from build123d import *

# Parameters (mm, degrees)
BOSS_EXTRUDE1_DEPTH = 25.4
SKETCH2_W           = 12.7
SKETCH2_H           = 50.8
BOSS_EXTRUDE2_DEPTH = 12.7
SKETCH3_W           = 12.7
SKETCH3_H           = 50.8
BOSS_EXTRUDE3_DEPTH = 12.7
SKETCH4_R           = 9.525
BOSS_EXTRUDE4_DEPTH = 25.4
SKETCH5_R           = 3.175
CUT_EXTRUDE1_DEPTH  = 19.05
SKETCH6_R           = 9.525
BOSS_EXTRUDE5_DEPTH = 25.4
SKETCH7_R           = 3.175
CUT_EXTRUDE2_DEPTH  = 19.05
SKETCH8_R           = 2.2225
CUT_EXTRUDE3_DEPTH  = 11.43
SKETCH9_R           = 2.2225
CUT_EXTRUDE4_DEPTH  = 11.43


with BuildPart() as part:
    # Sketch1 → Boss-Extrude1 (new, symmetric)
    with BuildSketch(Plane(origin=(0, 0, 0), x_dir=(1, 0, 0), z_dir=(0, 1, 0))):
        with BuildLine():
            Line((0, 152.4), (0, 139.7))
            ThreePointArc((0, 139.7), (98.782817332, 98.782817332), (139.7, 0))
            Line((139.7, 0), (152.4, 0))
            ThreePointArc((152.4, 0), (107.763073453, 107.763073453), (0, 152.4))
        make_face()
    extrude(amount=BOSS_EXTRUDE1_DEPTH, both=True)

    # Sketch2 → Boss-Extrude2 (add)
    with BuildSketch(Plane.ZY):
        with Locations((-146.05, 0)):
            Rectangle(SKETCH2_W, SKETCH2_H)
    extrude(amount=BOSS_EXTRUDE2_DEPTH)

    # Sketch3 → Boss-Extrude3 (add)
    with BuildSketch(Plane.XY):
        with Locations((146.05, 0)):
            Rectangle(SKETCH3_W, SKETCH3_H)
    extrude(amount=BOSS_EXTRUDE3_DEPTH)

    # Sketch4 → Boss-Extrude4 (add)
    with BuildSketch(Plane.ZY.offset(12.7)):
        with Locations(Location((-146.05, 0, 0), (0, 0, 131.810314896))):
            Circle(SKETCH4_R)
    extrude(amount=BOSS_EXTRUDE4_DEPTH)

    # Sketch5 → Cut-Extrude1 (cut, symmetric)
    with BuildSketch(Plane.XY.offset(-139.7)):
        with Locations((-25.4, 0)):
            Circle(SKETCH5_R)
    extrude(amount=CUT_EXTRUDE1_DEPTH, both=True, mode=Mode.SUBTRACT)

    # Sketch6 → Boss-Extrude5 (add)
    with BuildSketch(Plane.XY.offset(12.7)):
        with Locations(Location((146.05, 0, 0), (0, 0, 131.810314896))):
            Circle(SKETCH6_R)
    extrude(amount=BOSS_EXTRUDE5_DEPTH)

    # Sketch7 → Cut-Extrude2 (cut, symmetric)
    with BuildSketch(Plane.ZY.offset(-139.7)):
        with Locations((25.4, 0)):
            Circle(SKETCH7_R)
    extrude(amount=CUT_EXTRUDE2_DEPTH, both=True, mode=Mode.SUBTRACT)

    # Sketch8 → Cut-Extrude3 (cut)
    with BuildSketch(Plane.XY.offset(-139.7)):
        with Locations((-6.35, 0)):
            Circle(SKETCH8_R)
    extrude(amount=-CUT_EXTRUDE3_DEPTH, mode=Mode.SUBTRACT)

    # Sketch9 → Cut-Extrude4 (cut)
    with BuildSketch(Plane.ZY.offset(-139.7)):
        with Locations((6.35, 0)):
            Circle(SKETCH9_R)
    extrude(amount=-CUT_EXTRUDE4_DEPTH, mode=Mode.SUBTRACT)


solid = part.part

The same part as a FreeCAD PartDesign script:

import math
import FreeCAD as App
import Part
import Sketcher
from FreeCAD import Vector
Q = App.Units.Quantity

doc = App.newDocument("Part")
params = doc.addObject("Spreadsheet::Sheet", "Params")
for row, (alias, value) in enumerate([
    ("sketch1_radius", "6 in"),
    ("sketch1_radius2", "5.5 in"),
    ("pad1_length", "2 in"),
    ("sketch2_width", "2 in"),
    ("sketch2_height", "0.5 in"),
    ("pad2_length", "0.5 in"),
    ("sketch3_height", "2 in"),
    ("sketch3_width", "0.5 in"),
    ("pad3_length", "0.5 in"),
    ("sketch4_diameter", "0.75 in"),
    ("pad4_length", "1 in"),
    ("sketch5_diameter", "0.25 in"),
    ("pocket1_length", "1.5 in"),
    ("sketch6_diameter", "0.75 in"),
    ("pad5_length", "1 in"),
    ("sketch7_diameter", "0.25 in"),
    ("pocket2_length", "1.5 in"),
    ("sketch8_diameter", "0.175 in"),
    ("pocket3_length", "0.45 in"),
    ("sketch9_diameter", "0.175 in"),
    ("pocket4_length", "0.45 in"),
], start=1):
    params.set(f"A{row}", alias)
    params.set(f"B{row}", "=" + value)
    params.setAlias(f"B{row}", alias)

body = doc.addObject("PartDesign::Body", "Body")

sketch1 = body.newObject("Sketcher::SketchObject", "Sketch")
sketch1.AttachmentSupport = (doc.getObject("XZ_Plane"), [""])
sketch1.MapMode = "FlatFace"
sketch1.addGeometry(Part.LineSegment(Vector(0, -152, 0), Vector(0, -140, 0)), False)
sketch1.addGeometry(Part.ArcOfCircle(Part.Circle(Vector(0, 0, 0), Vector(0, 0, 1), 140), math.radians(-90), math.radians(0)), False)
sketch1.addGeometry(Part.LineSegment(Vector(140, 0, 0), Vector(152, 0, 0)), False)
sketch1.addGeometry(Part.ArcOfCircle(Part.Circle(Vector(0, 0, 0), Vector(0, 0, 1), 152), math.radians(-90), math.radians(0)), False)
sketch1.addConstraint(Sketcher.Constraint("Coincident", 0, 2, 1, 1))
sketch1.addConstraint(Sketcher.Constraint("Coincident", 1, 2, 2, 1))
sketch1.addConstraint(Sketcher.Constraint("Coincident", 2, 2, 3, 2))
sketch1.addConstraint(Sketcher.Constraint("Coincident", 3, 1, 0, 1))
sketch1.addConstraint(Sketcher.Constraint("Vertical", 0))
sketch1.addConstraint(Sketcher.Constraint("Horizontal", 2))
sketch1.addConstraint(Sketcher.Constraint("Coincident", 1, 3, -1, 1))
sketch1.addConstraint(Sketcher.Constraint("Coincident", 3, 3, -1, 1))
sketch1.addConstraint(Sketcher.Constraint("PointOnObject", 0, 2, -2))
sketch1.addConstraint(Sketcher.Constraint("PointOnObject", 1, 2, -1))
sketch1.addConstraint(Sketcher.Constraint("Radius", 3, Q("6 in")))
sketch1.addConstraint(Sketcher.Constraint("Radius", 1, Q("5.5 in")))
sketch1.setExpression("Constraints[10]", "Params.sketch1_radius")
sketch1.setExpression("Constraints[11]", "Params.sketch1_radius2")
pad1 = body.newObject("PartDesign::Pad", "Pad")
pad1.Profile = sketch1
pad1.setExpression("Length", "Params.pad1_length")
pad1.Midplane = True

sketch2 = body.newObject("Sketcher::SketchObject", "Sketch001")
sketch2.AttachmentSupport = (doc.getObject("YZ_Plane"), [""])
sketch2.MapMode = "FlatFace"
sketch2.addGeometry(Part.LineSegment(Vector(25, -152, 0), Vector(-25, -152, 0)), False)
sketch2.addGeometry(Part.LineSegment(Vector(-25, -152, 0), Vector(-25, -140, 0)), False)
sketch2.addGeometry(Part.LineSegment(Vector(-25, -140, 0), Vector(25, -140, 0)), False)
sketch2.addGeometry(Part.LineSegment(Vector(25, -140, 0), Vector(25, -152, 0)), False)
sketch2.addConstraint(Sketcher.Constraint("Coincident", 0, 2, 1, 1))
sketch2.addConstraint(Sketcher.Constraint("Coincident", 1, 2, 2, 1))
sketch2.addConstraint(Sketcher.Constraint("Coincident", 2, 2, 3, 1))
sketch2.addConstraint(Sketcher.Constraint("Coincident", 3, 2, 0, 1))
sketch2.addConstraint(Sketcher.Constraint("Horizontal", 0))
sketch2.addConstraint(Sketcher.Constraint("Vertical", 1))
sketch2.addConstraint(Sketcher.Constraint("Horizontal", 2))
sketch2.addConstraint(Sketcher.Constraint("Vertical", 3))
sketch2.addConstraint(Sketcher.Constraint("DistanceX", 0, 2, 0, 1, Q("2 in")))
sketch2.addConstraint(Sketcher.Constraint("DistanceY", 1, 1, 1, 2, Q("0.5 in")))
sketch2.addConstraint(Sketcher.Constraint("DistanceX", 0, 2, -1, 1, Q("1 in")))
sketch2.addConstraint(Sketcher.Constraint("DistanceY", 0, 2, -1, 1, Q("6 in")))
sketch2.setExpression("Constraints[8]", "Params.sketch2_width")
sketch2.setExpression("Constraints[9]", "Params.sketch2_height")
pad2 = body.newObject("PartDesign::Pad", "Pad001")
pad2.Profile = sketch2
pad2.setExpression("Length", "Params.pad2_length")
pad2.Reversed = True

sketch3 = body.newObject("Sketcher::SketchObject", "Sketch002")
sketch3.AttachmentSupport = (doc.getObject("XY_Plane"), [""])
sketch3.MapMode = "FlatFace"
sketch3.addGeometry(Part.LineSegment(Vector(140, 25, 0), Vector(140, -25, 0)), False)
sketch3.addGeometry(Part.LineSegment(Vector(140, -25, 0), Vector(152, -25, 0)), False)
sketch3.addGeometry(Part.LineSegment(Vector(152, -25, 0), Vector(152, 25, 0)), False)
sketch3.addGeometry(Part.LineSegment(Vector(152, 25, 0), Vector(140, 25, 0)), False)
sketch3.addConstraint(Sketcher.Constraint("Coincident", 0, 2, 1, 1))
sketch3.addConstraint(Sketcher.Constraint("Coincident", 1, 2, 2, 1))
sketch3.addConstraint(Sketcher.Constraint("Coincident", 2, 2, 3, 1))
sketch3.addConstraint(Sketcher.Constraint("Coincident", 3, 2, 0, 1))
sketch3.addConstraint(Sketcher.Constraint("Vertical", 0))
sketch3.addConstraint(Sketcher.Constraint("Horizontal", 1))
sketch3.addConstraint(Sketcher.Constraint("Vertical", 2))
sketch3.addConstraint(Sketcher.Constraint("Horizontal", 3))
sketch3.addConstraint(Sketcher.Constraint("DistanceY", 0, 2, 0, 1, Q("2 in")))
sketch3.addConstraint(Sketcher.Constraint("DistanceX", 1, 1, 1, 2, Q("0.5 in")))
sketch3.addConstraint(Sketcher.Constraint("DistanceY", 0, 2, -1, 1, Q("1 in")))
sketch3.addConstraint(Sketcher.Constraint("DistanceX", -1, 1, 1, 2, Q("6 in")))
sketch3.setExpression("Constraints[8]", "Params.sketch3_height")
sketch3.setExpression("Constraints[9]", "Params.sketch3_width")
pad3 = body.newObject("PartDesign::Pad", "Pad002")
pad3.Profile = sketch3
pad3.setExpression("Length", "Params.pad3_length")

sketch4 = body.newObject("Sketcher::SketchObject", "Sketch003")
sketch4.AttachmentSupport = (doc.getObject("YZ_Plane"), [""])
sketch4.MapMode = "FlatFace"
sketch4.AttachmentOffset = App.Placement(Vector(0, 0, -0.5 * 25.4), App.Rotation())
sketch4.addGeometry(Part.Circle(Vector(0, -146, 0), Vector(0, 0, 1), 10), False)
sketch4.addConstraint(Sketcher.Constraint("PointOnObject", 0, 3, -2))
sketch4.addConstraint(Sketcher.Constraint("Diameter", 0, Q("0.75 in")))
sketch4.addConstraint(Sketcher.Constraint("DistanceY", 0, 3, -1, 1, Q("5.75 in")))
sketch4.setExpression("Constraints[1]", "Params.sketch4_diameter")
pad4 = body.newObject("PartDesign::Pad", "Pad003")
pad4.Profile = sketch4
pad4.setExpression("Length", "Params.pad4_length")
pad4.Reversed = True

sketch5 = body.newObject("Sketcher::SketchObject", "Sketch004")
sketch5.AttachmentSupport = (doc.getObject("XY_Plane"), [""])
sketch5.MapMode = "FlatFace"
sketch5.AttachmentOffset = App.Placement(Vector(0, 0, -5.5 * 25.4), App.Rotation())
sketch5.addGeometry(Part.Circle(Vector(-25.4, 0, 0), Vector(0, 0, 1), 3.2), False)
sketch5.addConstraint(Sketcher.Constraint("PointOnObject", 0, 3, -1))
sketch5.addConstraint(Sketcher.Constraint("Diameter", 0, Q("0.25 in")))
sketch5.addConstraint(Sketcher.Constraint("DistanceX", 0, 3, -1, 1, Q("1 in")))
sketch5.setExpression("Constraints[1]", "Params.sketch5_diameter")
pocket1 = body.newObject("PartDesign::Pocket", "Pocket")
pocket1.Profile = sketch5
pocket1.setExpression("Length", "Params.pocket1_length")
pocket1.Midplane = True

sketch6 = body.newObject("Sketcher::SketchObject", "Sketch005")
sketch6.AttachmentSupport = (doc.getObject("XY_Plane"), [""])
sketch6.MapMode = "FlatFace"
sketch6.AttachmentOffset = App.Placement(Vector(0, 0, 0.5 * 25.4), App.Rotation())
sketch6.addGeometry(Part.Circle(Vector(146, 0, 0), Vector(0, 0, 1), 10), False)
sketch6.addConstraint(Sketcher.Constraint("PointOnObject", 0, 3, -1))
sketch6.addConstraint(Sketcher.Constraint("Diameter", 0, Q("0.75 in")))
sketch6.addConstraint(Sketcher.Constraint("DistanceX", -1, 1, 0, 3, Q("5.75 in")))
sketch6.setExpression("Constraints[1]", "Params.sketch6_diameter")
pad5 = body.newObject("PartDesign::Pad", "Pad004")
pad5.Profile = sketch6
pad5.setExpression("Length", "Params.pad5_length")

sketch7 = body.newObject("Sketcher::SketchObject", "Sketch006")
sketch7.AttachmentSupport = (doc.getObject("YZ_Plane"), [""])
sketch7.MapMode = "FlatFace"
sketch7.AttachmentOffset = App.Placement(Vector(0, 0, 5.5 * 25.4), App.Rotation())
sketch7.addGeometry(Part.Circle(Vector(0, 25.4, 0), Vector(0, 0, 1), 3.2), False)
sketch7.addConstraint(Sketcher.Constraint("PointOnObject", 0, 3, -2))
sketch7.addConstraint(Sketcher.Constraint("Diameter", 0, Q("0.25 in")))
sketch7.addConstraint(Sketcher.Constraint("DistanceY", -1, 1, 0, 3, Q("1 in")))
sketch7.setExpression("Constraints[1]", "Params.sketch7_diameter")
pocket2 = body.newObject("PartDesign::Pocket", "Pocket001")
pocket2.Profile = sketch7
pocket2.setExpression("Length", "Params.pocket2_length")
pocket2.Midplane = True

sketch8 = body.newObject("Sketcher::SketchObject", "Sketch007")
sketch8.AttachmentSupport = (doc.getObject("XY_Plane"), [""])
sketch8.MapMode = "FlatFace"
sketch8.AttachmentOffset = App.Placement(Vector(0, 0, -5.5 * 25.4), App.Rotation())
sketch8.addGeometry(Part.Circle(Vector(-6.3, 0, 0), Vector(0, 0, 1), 2.2), False)
sketch8.addConstraint(Sketcher.Constraint("PointOnObject", 0, 3, -1))
sketch8.addConstraint(Sketcher.Constraint("Diameter", 0, Q("0.175 in")))
sketch8.addConstraint(Sketcher.Constraint("DistanceX", 0, 3, -1, 1, Q("0.25 in")))
sketch8.setExpression("Constraints[1]", "Params.sketch8_diameter")
pocket3 = body.newObject("PartDesign::Pocket", "Pocket002")
pocket3.Profile = sketch8
pocket3.setExpression("Length", "Params.pocket3_length")

sketch9 = body.newObject("Sketcher::SketchObject", "Sketch008")
sketch9.AttachmentSupport = (doc.getObject("YZ_Plane"), [""])
sketch9.MapMode = "FlatFace"
sketch9.AttachmentOffset = App.Placement(Vector(0, 0, 5.5 * 25.4), App.Rotation())
sketch9.addGeometry(Part.Circle(Vector(0, 6.3, 0), Vector(0, 0, 1), 2.2), False)
sketch9.addConstraint(Sketcher.Constraint("PointOnObject", 0, 3, -2))
sketch9.addConstraint(Sketcher.Constraint("Diameter", 0, Q("0.175 in")))
sketch9.addConstraint(Sketcher.Constraint("DistanceY", -1, 1, 0, 3, Q("0.25 in")))
sketch9.setExpression("Constraints[1]", "Params.sketch9_diameter")
pocket4 = body.newObject("PartDesign::Pocket", "Pocket003")
pocket4.Profile = sketch9
pocket4.setExpression("Length", "Params.pocket4_length")
pocket4.Reversed = True

doc.recompute()
